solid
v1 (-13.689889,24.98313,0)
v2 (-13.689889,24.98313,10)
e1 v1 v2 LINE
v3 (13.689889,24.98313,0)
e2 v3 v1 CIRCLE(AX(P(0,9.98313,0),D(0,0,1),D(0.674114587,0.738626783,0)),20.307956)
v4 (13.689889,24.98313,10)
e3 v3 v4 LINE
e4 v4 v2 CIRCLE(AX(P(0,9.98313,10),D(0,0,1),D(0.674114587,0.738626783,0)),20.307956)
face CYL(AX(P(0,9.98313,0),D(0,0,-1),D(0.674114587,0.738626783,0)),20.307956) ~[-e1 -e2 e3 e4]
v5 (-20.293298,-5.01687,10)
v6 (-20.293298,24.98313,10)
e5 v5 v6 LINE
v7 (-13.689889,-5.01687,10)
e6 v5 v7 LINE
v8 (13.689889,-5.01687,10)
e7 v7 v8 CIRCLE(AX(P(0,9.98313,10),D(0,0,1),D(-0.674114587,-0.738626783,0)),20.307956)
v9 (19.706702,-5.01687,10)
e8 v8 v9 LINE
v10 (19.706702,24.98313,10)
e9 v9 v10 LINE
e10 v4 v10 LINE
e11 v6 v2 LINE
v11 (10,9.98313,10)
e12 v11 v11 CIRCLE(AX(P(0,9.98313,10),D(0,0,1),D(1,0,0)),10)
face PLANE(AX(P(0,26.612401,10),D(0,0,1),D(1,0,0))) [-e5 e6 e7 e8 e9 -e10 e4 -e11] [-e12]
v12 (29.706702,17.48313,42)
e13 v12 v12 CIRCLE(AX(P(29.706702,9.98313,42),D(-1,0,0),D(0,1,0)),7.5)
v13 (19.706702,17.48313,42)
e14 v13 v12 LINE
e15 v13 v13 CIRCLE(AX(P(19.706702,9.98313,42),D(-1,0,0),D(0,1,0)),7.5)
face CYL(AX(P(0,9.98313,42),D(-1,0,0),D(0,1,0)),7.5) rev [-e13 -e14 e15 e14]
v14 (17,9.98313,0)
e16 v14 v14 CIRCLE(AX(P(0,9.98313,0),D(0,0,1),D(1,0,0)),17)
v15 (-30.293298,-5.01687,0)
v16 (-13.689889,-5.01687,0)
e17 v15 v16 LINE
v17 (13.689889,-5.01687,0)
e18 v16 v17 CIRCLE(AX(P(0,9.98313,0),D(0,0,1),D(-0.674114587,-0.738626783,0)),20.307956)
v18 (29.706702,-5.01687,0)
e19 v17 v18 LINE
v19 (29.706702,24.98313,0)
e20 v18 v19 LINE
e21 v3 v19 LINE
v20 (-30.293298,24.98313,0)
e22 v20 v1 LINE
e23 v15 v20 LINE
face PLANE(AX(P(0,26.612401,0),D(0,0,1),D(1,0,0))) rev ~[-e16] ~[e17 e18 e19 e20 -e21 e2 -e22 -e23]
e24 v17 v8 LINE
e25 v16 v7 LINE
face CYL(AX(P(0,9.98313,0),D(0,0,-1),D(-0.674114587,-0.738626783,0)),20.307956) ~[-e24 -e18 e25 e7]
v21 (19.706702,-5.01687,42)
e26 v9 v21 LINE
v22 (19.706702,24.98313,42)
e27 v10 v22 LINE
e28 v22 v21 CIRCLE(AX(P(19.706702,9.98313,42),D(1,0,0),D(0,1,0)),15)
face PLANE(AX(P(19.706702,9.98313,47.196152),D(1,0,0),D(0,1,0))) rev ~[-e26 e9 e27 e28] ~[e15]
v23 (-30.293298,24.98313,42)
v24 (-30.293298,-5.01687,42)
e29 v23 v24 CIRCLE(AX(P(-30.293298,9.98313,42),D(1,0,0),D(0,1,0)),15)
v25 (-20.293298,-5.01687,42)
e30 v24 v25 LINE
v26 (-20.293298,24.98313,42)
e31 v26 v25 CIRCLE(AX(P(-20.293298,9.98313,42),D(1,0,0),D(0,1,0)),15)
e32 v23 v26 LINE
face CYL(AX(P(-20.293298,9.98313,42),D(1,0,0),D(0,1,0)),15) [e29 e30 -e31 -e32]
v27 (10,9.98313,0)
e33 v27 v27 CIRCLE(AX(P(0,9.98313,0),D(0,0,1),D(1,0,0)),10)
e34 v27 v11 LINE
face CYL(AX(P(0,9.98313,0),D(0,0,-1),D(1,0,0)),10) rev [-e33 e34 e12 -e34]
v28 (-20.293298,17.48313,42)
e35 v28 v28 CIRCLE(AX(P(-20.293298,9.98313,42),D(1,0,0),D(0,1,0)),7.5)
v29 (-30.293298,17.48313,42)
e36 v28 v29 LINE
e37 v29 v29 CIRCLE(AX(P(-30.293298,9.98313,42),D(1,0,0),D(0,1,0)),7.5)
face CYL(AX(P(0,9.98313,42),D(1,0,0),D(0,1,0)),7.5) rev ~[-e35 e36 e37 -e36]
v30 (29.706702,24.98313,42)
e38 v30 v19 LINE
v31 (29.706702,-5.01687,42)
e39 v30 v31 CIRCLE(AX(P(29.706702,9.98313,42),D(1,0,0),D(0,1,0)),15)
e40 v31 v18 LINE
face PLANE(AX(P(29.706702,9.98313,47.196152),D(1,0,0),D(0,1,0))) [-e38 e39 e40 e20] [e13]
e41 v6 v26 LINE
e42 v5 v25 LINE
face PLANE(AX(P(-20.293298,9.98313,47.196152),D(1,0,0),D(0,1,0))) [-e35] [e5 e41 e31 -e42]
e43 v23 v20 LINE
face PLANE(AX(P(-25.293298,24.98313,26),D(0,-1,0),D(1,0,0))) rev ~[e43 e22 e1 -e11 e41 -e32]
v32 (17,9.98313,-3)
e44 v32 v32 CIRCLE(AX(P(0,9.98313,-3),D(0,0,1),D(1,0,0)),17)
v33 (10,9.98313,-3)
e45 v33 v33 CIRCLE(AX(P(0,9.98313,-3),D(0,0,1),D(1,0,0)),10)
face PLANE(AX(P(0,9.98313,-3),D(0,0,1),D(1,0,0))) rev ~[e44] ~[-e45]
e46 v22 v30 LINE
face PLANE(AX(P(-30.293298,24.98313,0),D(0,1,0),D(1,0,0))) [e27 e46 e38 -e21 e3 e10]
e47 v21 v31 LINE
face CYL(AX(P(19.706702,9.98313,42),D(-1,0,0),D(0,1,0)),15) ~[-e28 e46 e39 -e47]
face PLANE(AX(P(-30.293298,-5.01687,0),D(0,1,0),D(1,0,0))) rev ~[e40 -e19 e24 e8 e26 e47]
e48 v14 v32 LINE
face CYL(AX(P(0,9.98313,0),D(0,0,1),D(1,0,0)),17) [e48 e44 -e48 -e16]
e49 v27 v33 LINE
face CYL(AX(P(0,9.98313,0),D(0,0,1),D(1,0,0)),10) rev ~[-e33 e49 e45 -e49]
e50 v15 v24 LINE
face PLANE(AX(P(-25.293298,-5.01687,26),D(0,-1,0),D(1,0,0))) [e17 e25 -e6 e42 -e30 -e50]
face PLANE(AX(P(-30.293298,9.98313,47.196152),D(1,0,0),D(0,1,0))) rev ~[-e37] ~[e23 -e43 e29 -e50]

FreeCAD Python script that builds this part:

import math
import FreeCAD as App
import Part
import Sketcher

doc = App.newDocument("Part")
params = doc.addObject("Spreadsheet::Sheet", "Params")
for row, (alias, value) in enumerate([
    ("sketch1_width", "60 mm"),
    ("sketch1_height", "30 mm"),
    ("pad1_length", "10 mm"),
    ("sketch2_diameter", "20 mm"),
    ("pad2_length", "10 mm"),
    ("sketch3_diameter", "20 mm"),
    ("sketch4_diameter", "34 mm"),
    ("pad3_length", "3 mm"),
    ("sketch5_diameter", "20 mm"),
    ("pocket2_length", "25 mm"),
    ("sketch6_width", "10 mm"),
    ("sketch6_height", "32 mm"),
    ("pad4_length", "5.01687 mm"),
    ("pad4_length2", "24.98313 mm"),
    ("sketch7_radius", "15 mm"),
    ("pad5_length", "10 mm"),
    ("sketch8_radius", "15 mm"),
    ("pad6_length", "10 mm"),
    ("sketch9_diameter", "15 mm"),
], start=1):
    params.set(f"A{row}", alias)
    params.set(f"B{row}", "=" + value)
    params.setAlias(f"B{row}", alias)

body = doc.addObject("PartDesign::Body", "Body")

sketch1 = body.newObject("Sketcher::SketchObject", "Sketch")
sketch1.AttachmentSupport = (doc.getObject("XY_Plane"), [""])
sketch1.MapMode = "FlatFace"
sketch1.addGeometry([
    Part.LineSegment(App.Vector(-30.293298, 24.98313, 0), App.Vector(-30.293298, -5.01687, 0)),
    Part.LineSegment(App.Vector(-30.293298, -5.01687, 0), App.Vector(29.706702, -5.01687, 0)),
    Part.LineSegment(App.Vector(29.706702, -5.01687, 0), App.Vector(29.706702, 24.98313, 0)),
    Part.LineSegment(App.Vector(29.706702, 24.98313, 0), App.Vector(-30.293298, 24.98313, 0)),
], False)
sketch1.addConstraint([
    Sketcher.Constraint("Coincident", 0, 2, 1, 1),
    Sketcher.Constraint("Coincident", 1, 2, 2, 1),
    Sketcher.Constraint("Coincident", 2, 2, 3, 1),
    Sketcher.Constraint("Coincident", 3, 2, 0, 1),
    Sketcher.Constraint("Vertical", 0),
    Sketcher.Constraint("Horizontal", 1),
    Sketcher.Constraint("Vertical", 2),
    Sketcher.Constraint("Horizontal", 3),
    Sketcher.Constraint("DistanceX", 1, 1, 1, 2, 60.0),
    Sketcher.Constraint("DistanceY", 0, 2, 0, 1, 30.0),
    Sketcher.Constraint("DistanceY", 0, 2, -1, 1, 5.01687),
    Sketcher.Constraint("DistanceX", 0, 2, -1, 1, 30.293298),
])
sketch1.setExpression("Constraints[8]", "Params.sketch1_width")
sketch1.setExpression("Constraints[9]", "Params.sketch1_height")
pad1 = body.newObject("PartDesign::Pad", "Pad")
pad1.Profile = sketch1
pad1.setExpression("Length", "Params.pad1_length")

sketch2 = body.newObject("Sketcher::SketchObject", "Sketch001")
sketch2.AttachmentSupport = (doc.getObject("XY_Plane"), [""])
sketch2.MapMode = "FlatFace"
sketch2.addGeometry([
    Part.ArcOfCircle(Part.Circle(App.Vector(0, 9.98313, 0), App.Vector(0, 0, 1), 20.307956), math.radians(47.61457), math.radians(132.38543)),
    Part.ArcOfCircle(Part.Circle(App.Vector(0, 9.98313, 0), App.Vector(0, 0, 1), 20.307956), math.radians(132.38543), math.radians(176.06059)),
    Part.ArcOfCircle(Part.Circle(App.Vector(0, 9.98313, 0), App.Vector(0, 0, 1), 20.307956), math.radians(176.06059), math.radians(227.61457)),
    Part.ArcOfCircle(Part.Circle(App.Vector(0, 9.98313, 0), App.Vector(0, 0, 1), 20.307956), math.radians(-132.38543), math.radians(-47.61457)),
    Part.ArcOfCircle(Part.Circle(App.Vector(0, 9.98313, 0), App.Vector(0, 0, 1), 20.307956), math.radians(-47.61457), math.radians(1.53853)),
    Part.ArcOfCircle(Part.Circle(App.Vector(0, 9.98313, 0), App.Vector(0, 0, 1), 20.307956), math.radians(1.53853), math.radians(47.61457)),
    Part.Circle(App.Vector(0, 9.98313, 0), App.Vector(0, 0, 1), 10),
], False)
sketch2.addConstraint([
    Sketcher.Constraint("Tangent", 0, 2, 1, 1),
    Sketcher.Constraint("Tangent", 1, 2, 2, 1),
    Sketcher.Constraint("Tangent", 2, 2, 3, 1),
    Sketcher.Constraint("Tangent", 3, 2, 4, 1),
    Sketcher.Constraint("Tangent", 4, 2, 5, 1),
    Sketcher.Constraint("Tangent", 5, 2, 0, 1),
    Sketcher.Constraint("Coincident", 2, 3, 0, 3),
    Sketcher.Constraint("Coincident", 6, 3, 0, 3),
    Sketcher.Constraint("Equal", 2, 3),
    Sketcher.Constraint("Symmetric", 2, 2, 3, 2, -2),
    Sketcher.Constraint("Horizontal", 0, 2, 5, 2),
    Sketcher.Constraint("Vertical", 0, 2, 2, 2),
    Sketcher.Constraint("Diameter", 6, 20.0),
    Sketcher.Constraint("DistanceY", 1, 3, 0, 2, 15.0),
    Sketcher.Constraint("Radius", 0, 20.307956),
    Sketcher.Constraint("DistanceY", -1, 1, 0, 3, 9.98313),
    Sketcher.Constraint("DistanceY", 3, 2, 4, 2, 15.545252),
    Sketcher.Constraint("DistanceX", 1, 2, -1, 1, 20.259973),
])
sketch2.setExpression("Constraints[12]", "Params.sketch2_diameter")
pad2 = body.newObject("PartDesign::Pad", "Pad001")
pad2.Profile = sketch2
pad2.setExpression("Length", "Params.pad2_length")

sketch3 = body.newObject("Sketcher::SketchObject", "Sketch002")
sketch3.AttachmentSupport = (doc.getObject("XY_Plane"), [""])
sketch3.MapMode = "FlatFace"
sketch3.addGeometry(Part.Circle(App.Vector(0, 9.98313, 0), App.Vector(0, 0, 1), 10), False)
sketch3.addConstraint([
    Sketcher.Constraint("PointOnObject", 0, 3, -2),
    Sketcher.Constraint("Diameter", 0, 20.0),
    Sketcher.Constraint("DistanceY", -1, 1, 0, 3, 9.98313),
])
sketch3.setExpression("Constraints[1]", "Params.sketch3_diameter")
pocket1 = body.newObject("PartDesign::Pocket", "Pocket")
pocket1.Profile = sketch3
pocket1.Type = "ThroughAll"
pocket1.Midplane = True

sketch4 = body.newObject("Sketcher::SketchObject", "Sketch003")
sketch4.AttachmentSupport = (doc.getObject("XY_Plane"), [""])
sketch4.MapMode = "FlatFace"
sketch4.addGeometry(Part.Circle(App.Vector(0, 9.98313, 0), App.Vector(0, 0, 1), 17), False)
sketch4.addConstraint([
    Sketcher.Constraint("PointOnObject", 0, 3, -2),
    Sketcher.Constraint("Diameter", 0, 34.0),
    Sketcher.Constraint("DistanceY", -1, 1, 0, 3, 9.98313),
])
sketch4.setExpression("Constraints[1]", "Params.sketch4_diameter")
pad3 = body.newObject("PartDesign::Pad", "Pad002")
pad3.Profile = sketch4
pad3.setExpression("Length", "Params.pad3_length")
pad3.Reversed = True

sketch5 = body.newObject("Sketcher::SketchObject", "Sketch004")
sketch5.AttachmentSupport = (doc.getObject("XY_Plane"), [""])
sketch5.MapMode = "FlatFace"
sketch5.addGeometry(Part.Circle(App.Vector(0, 9.98313, 0), App.Vector(0, 0, 1), 10), False)
sketch5.addConstraint([
    Sketcher.Constraint("PointOnObject", 0, 3, -2),
    Sketcher.Constraint("Diameter", 0, 20.0),
    Sketcher.Constraint("DistanceY", -1, 1, 0, 3, 9.98313),
])
sketch5.setExpression("Constraints[1]", "Params.sketch5_diameter")
pocket2 = body.newObject("PartDesign::Pocket", "Pocket001")
pocket2.Profile = sketch5
pocket2.setExpression("Length", "Params.pocket2_length")

sketch6 = body.newObject("Sketcher::SketchObject", "Sketch005")
sketch6.AttachmentSupport = (doc.getObject("XZ_Plane"), [""])
sketch6.MapMode = "FlatFace"
sketch6.addGeometry([
    Part.LineSegment(App.Vector(-30.293298, 42, 0), App.Vector(-30.293298, 10, 0)),
    Part.LineSegment(App.Vector(-30.293298, 10, 0), App.Vector(-20.293298, 10, 0)),
    Part.LineSegment(App.Vector(-20.293298, 10, 0), App.Vector(-20.293298, 42, 0)),
    Part.LineSegment(App.Vector(-20.293298, 42, 0), App.Vector(-30.293298, 42, 0)),
    Part.LineSegment(App.Vector(19.706702, 42, 0), App.Vector(19.706702, 10, 0)),
    Part.LineSegment(App.Vector(19.706702, 10, 0), App.Vector(29.706702, 10, 0)),
    Part.LineSegment(App.Vector(29.706702, 10, 0), App.Vector(29.706702, 42, 0)),
    Part.LineSegment(App.Vector(29.706702, 42, 0), App.Vector(19.706702, 42, 0)),
], False)
sketch6.addConstraint([
    Sketcher.Constraint("Coincident", 0, 2, 1, 1),
    Sketcher.Constraint("Coincident", 1, 2, 2, 1),
    Sketcher.Constraint("Coincident", 2, 2, 3, 1),
    Sketcher.Constraint("Coincident", 3, 2, 0, 1),
    Sketcher.Constraint("Coincident", 4, 2, 5, 1),
    Sketcher.Constraint("Coincident", 5, 2, 6, 1),
    Sketcher.Constraint("Coincident", 6, 2, 7, 1),
    Sketcher.Constraint("Coincident", 7, 2, 4, 1),
    Sketcher.Constraint("Vertical", 0),
    Sketcher.Constraint("Horizontal", 1),
    Sketcher.Constraint("Vertical", 2),
    Sketcher.Constraint("Horizontal", 3),
    Sketcher.Constraint("Vertical", 4),
    Sketcher.Constraint("Horizontal", 5),
    Sketcher.Constraint("Vertical", 6),
    Sketcher.Constraint("Horizontal", 7),
    Sketcher.Constraint("Horizontal", 1, 2, 4, 2),
    Sketcher.Constraint("Horizontal", 3, 2, 6, 2),
    Sketcher.Constraint("Equal", 3, 5),
    Sketcher.Constraint("DistanceX", 1, 1, 1, 2, 10.0),
    Sketcher.Constraint("DistanceY", 0, 2, 0, 1, 32.0),
    Sketcher.Constraint("DistanceY", -1, 1, 0, 2, 10.0),
    Sketcher.Constraint("DistanceX", 1, 2, 4, 2, 40.0),
    Sketcher.Constraint("DistanceX", 0, 2, -1, 1, 30.293298),
])
sketch6.setExpression("Constraints[19]", "Params.sketch6_width")
sketch6.setExpression("Constraints[20]", "Params.sketch6_height")
pad4 = body.newObject("PartDesign::Pad", "Pad003")
pad4.Profile = sketch6
pad4.Type = "TwoLengths"
pad4.setExpression("Length", "Params.pad4_length")
pad4.setExpression("Length2", "Params.pad4_length2")

sketch7 = body.newObject("Sketcher::SketchObject", "Sketch006")
sketch7.AttachmentSupport = (doc.getObject("YZ_Plane"), [""])
sketch7.MapMode = "FlatFace"
sketch7.AttachmentOffset = App.Placement(App.Vector(0, 0, 19.706702), App.Rotation())
sketch7.addGeometry([
    Part.ArcOfCircle(Part.Circle(App.Vector(9.98313, 42, 0), App.Vector(0, 0, 1), 15), math.radians(0), math.radians(180)),
    Part.LineSegment(App.Vector(-5.01687, 42, 0), App.Vector(24.98313, 42, 0)),
], False)
sketch7.addConstraint([
    Sketcher.Constraint("Coincident", 0, 1, 1, 2),
    Sketcher.Constraint("Coincident", 1, 1, 0, 2),
    Sketcher.Constraint("Horizontal", 1),
    Sketcher.Constraint("Radius", 0, 15.0),
    Sketcher.Constraint("DistanceY", -1, 1, 0, 3, 42.0),
    Sketcher.Constraint("DistanceY", -1, 1, 0, 1, 42.0),
    Sketcher.Constraint("DistanceX", -1, 1, 0, 3, 9.98313),
])
sketch7.setExpression("Constraints[3]", "Params.sketch7_radius")
pad5 = body.newObject("PartDesign::Pad", "Pad004")
pad5.Profile = sketch7
pad5.setExpression("Length", "Params.pad5_length")

sketch8 = body.newObject("Sketcher::SketchObject", "Sketch007")
sketch8.AttachmentSupport = (doc.getObject("YZ_Plane"), [""])
sketch8.MapMode = "FlatFace"
sketch8.AttachmentOffset = App.Placement(App.Vector(0, 0, -20.293298), App.Rotation())
sketch8.addGeometry([
    Part.ArcOfCircle(Part.Circle(App.Vector(9.98313, 42, 0), App.Vector(0, 0, 1), 15), math.radians(0), math.radians(180)),
    Part.LineSegment(App.Vector(-5.01687, 42, 0), App.Vector(24.98313, 42, 0)),
], False)
sketch8.addConstraint([
    Sketcher.Constraint("Coincident", 0, 1, 1, 2),
    Sketcher.Constraint("Coincident", 1, 1, 0, 2),
    Sketcher.Constraint("Horizontal", 1),
    Sketcher.Constraint("Radius", 0, 15.0),
    Sketcher.Constraint("DistanceY", -1, 1, 0, 3, 42.0),
    Sketcher.Constraint("DistanceY", -1, 1, 0, 1, 42.0),
    Sketcher.Constraint("DistanceX", -1, 1, 0, 3, 9.98313),
])
sketch8.setExpression("Constraints[3]", "Params.sketch8_radius")
pad6 = body.newObject("PartDesign::Pad", "Pad005")
pad6.Profile = sketch8
pad6.setExpression("Length", "Params.pad6_length")
pad6.Reversed = True

sketch9 = body.newObject("Sketcher::SketchObject", "Sketch008")
sketch9.AttachmentSupport = (doc.getObject("YZ_Plane"), [""])
sketch9.MapMode = "FlatFace"
sketch9.addGeometry(Part.Circle(App.Vector(9.98313, 42, 0), App.Vector(0, 0, 1), 7.5), False)
sketch9.addConstraint([
    Sketcher.Constraint("Diameter", 0, 15.0),
    Sketcher.Constraint("DistanceY", -1, 1, 0, 3, 42.0),
    Sketcher.Constraint("DistanceX", -1, 1, 0, 3, 9.98313),
])
sketch9.setExpression("Constraints[0]", "Params.sketch9_diameter")
pocket3 = body.newObject("PartDesign::Pocket", "Pocket002")
pocket3.Profile = sketch9
pocket3.Type = "ThroughAll"
pocket3.Midplane = True

doc.recompute()
